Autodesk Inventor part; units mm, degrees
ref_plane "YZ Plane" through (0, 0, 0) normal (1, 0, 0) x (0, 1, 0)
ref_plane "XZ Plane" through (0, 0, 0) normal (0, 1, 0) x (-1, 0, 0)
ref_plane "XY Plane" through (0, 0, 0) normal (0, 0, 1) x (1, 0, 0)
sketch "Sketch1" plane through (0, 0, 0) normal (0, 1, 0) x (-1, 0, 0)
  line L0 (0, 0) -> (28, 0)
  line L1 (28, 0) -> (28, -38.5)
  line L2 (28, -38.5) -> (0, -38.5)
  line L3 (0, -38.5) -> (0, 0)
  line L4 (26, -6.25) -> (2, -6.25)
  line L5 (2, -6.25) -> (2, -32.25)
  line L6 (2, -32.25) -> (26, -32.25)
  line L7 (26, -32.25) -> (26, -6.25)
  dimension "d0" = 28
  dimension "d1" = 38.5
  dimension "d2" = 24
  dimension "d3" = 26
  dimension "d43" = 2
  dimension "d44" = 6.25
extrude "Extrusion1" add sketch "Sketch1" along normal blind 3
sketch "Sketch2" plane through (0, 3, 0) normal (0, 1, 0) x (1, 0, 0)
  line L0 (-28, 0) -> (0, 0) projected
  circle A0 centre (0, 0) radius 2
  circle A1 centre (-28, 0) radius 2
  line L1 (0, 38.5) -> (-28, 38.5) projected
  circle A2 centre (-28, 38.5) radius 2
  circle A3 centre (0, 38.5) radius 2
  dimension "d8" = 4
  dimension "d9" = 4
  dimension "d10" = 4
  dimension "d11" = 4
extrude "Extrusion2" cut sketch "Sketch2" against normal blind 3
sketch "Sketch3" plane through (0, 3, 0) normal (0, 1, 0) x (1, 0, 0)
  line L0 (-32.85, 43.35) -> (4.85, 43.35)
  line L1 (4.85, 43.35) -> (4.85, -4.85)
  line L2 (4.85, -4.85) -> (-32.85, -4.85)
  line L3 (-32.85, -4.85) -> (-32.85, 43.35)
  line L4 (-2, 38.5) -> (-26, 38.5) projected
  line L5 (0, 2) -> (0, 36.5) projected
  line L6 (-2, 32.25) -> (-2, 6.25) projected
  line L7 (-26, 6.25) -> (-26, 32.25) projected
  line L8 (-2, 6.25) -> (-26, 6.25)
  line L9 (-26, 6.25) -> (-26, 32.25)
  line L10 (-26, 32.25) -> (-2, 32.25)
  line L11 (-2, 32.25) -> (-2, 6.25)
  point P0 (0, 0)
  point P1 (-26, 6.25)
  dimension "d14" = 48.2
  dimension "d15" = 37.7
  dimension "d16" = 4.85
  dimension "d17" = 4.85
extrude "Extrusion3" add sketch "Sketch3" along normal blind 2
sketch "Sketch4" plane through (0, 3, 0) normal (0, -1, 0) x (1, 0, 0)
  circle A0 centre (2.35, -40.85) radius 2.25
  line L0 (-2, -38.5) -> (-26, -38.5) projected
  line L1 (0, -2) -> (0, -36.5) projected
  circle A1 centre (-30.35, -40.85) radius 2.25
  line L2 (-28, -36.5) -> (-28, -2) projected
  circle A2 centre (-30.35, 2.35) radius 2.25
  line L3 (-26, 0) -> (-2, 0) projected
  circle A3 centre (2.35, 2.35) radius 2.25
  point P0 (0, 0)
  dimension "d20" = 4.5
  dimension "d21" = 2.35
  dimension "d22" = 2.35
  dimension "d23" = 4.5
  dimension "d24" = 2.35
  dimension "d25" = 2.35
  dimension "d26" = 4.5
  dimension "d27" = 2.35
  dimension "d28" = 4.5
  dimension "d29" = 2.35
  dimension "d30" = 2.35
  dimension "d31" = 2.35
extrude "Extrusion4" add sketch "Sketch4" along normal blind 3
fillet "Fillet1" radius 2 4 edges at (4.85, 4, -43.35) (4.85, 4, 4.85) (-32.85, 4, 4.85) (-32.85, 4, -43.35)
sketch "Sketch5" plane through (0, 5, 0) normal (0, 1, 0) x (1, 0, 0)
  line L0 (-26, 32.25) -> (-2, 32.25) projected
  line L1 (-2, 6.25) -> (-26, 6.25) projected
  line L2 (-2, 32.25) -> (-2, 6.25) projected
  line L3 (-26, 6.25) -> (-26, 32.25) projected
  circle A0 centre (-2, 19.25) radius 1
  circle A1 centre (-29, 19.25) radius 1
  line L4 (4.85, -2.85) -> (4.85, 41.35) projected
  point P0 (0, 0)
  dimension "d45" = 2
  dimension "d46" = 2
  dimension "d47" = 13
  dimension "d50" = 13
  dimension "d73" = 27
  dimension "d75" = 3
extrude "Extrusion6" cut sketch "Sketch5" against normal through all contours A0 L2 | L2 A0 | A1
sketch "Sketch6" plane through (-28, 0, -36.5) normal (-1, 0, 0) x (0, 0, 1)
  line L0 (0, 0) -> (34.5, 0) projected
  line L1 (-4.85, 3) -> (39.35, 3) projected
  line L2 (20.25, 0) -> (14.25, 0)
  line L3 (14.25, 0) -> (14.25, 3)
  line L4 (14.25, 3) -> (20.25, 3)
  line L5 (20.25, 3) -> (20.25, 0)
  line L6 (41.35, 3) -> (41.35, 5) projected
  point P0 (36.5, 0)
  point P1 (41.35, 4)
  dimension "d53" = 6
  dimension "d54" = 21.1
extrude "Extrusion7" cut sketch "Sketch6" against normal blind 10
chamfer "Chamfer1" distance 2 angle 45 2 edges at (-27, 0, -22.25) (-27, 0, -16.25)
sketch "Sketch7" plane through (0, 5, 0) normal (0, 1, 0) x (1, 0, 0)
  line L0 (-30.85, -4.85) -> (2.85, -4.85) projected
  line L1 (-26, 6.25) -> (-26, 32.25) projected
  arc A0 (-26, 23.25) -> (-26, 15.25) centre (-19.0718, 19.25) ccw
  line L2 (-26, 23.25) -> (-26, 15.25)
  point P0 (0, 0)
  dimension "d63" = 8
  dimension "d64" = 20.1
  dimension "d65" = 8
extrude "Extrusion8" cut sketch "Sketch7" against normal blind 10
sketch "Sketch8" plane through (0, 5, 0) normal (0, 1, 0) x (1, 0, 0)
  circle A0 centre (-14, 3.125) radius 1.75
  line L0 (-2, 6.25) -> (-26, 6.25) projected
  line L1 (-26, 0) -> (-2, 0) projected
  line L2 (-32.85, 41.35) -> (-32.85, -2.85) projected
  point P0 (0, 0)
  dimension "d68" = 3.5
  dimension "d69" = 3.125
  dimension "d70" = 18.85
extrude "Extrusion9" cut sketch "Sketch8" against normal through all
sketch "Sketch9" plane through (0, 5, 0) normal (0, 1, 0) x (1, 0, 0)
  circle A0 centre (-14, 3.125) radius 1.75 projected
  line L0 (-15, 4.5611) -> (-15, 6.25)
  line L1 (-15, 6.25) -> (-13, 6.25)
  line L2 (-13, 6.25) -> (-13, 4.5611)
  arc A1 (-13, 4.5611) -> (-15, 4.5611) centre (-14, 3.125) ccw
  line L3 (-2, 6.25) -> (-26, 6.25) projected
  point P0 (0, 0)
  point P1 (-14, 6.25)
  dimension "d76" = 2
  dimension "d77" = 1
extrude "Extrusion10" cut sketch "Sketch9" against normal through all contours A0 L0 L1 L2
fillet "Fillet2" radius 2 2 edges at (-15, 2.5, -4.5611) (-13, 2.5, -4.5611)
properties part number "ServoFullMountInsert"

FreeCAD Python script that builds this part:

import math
import FreeCAD as App
import Part
import Sketcher


def edges_at(feature, points):
    """Names of the edges that pass closest to the given points."""
    edges = feature.Shape.Edges
    near = lambda p: min(range(len(edges)), key=lambda i: edges[i].distToShape(Part.Vertex(*p))[0])
    return sorted({f"Edge{near(p) + 1}" for p in points})

doc = App.newDocument("Part")
body = doc.addObject("PartDesign::Body", "Body")

# Sketch on XZ plane
sketch1 = body.newObject("Sketcher::SketchObject", "Sketch")
sketch1.AttachmentSupport = (doc.getObject("XZ_Plane"), [""])
sketch1.MapMode = "FlatFace"
sketch1.addGeometry([
    Part.LineSegment(App.Vector(-28, 0, 0), App.Vector(0, 0, 0)),  # 0
    Part.LineSegment(App.Vector(0, 0, 0), App.Vector(0, -38, 0)),  # 1
    Part.LineSegment(App.Vector(0, -38, 0), App.Vector(-28, -38, 0)),  # 2
    Part.LineSegment(App.Vector(-28, -38, 0), App.Vector(-28, 0, 0)),  # 3
    Part.LineSegment(App.Vector(-2, -6, 0), App.Vector(-26, -6, 0)),  # 4
    Part.LineSegment(App.Vector(-26, -6, 0), App.Vector(-26, -32, 0)),  # 5
    Part.LineSegment(App.Vector(-26, -32, 0), App.Vector(-2, -32, 0)),  # 6
    Part.LineSegment(App.Vector(-2, -32, 0), App.Vector(-2, -6, 0)),  # 7
], False)
sketch1.addConstraint([
    Sketcher.Constraint("Coincident", 0, 2, 1, 1),
    Sketcher.Constraint("Coincident", 1, 2, 2, 1),
    Sketcher.Constraint("Coincident", 2, 2, 3, 1),
    Sketcher.Constraint("Coincident", 3, 2, 0, 1),
    Sketcher.Constraint("Coincident", 4, 2, 5, 1),
    Sketcher.Constraint("Coincident", 5, 2, 6, 1),
    Sketcher.Constraint("Coincident", 6, 2, 7, 1),
    Sketcher.Constraint("Coincident", 7, 2, 4, 1),
    Sketcher.Constraint("Horizontal", 0),
    Sketcher.Constraint("Vertical", 1),
    Sketcher.Constraint("Horizontal", 2),
    Sketcher.Constraint("Vertical", 3),
    Sketcher.Constraint("Horizontal", 4),
    Sketcher.Constraint("Vertical", 5),
    Sketcher.Constraint("Horizontal", 6),
    Sketcher.Constraint("Vertical", 7),
    Sketcher.Constraint("Coincident", 0, 2, -1, 1),
    Sketcher.Constraint("DistanceX", 0, 1, 0, 2, 28.0),
    Sketcher.Constraint("DistanceX", 4, 2, 4, 1, 24.0),
    Sketcher.Constraint("DistanceY", 5, 2, 5, 1, 26.0),
    Sketcher.Constraint("DistanceY", 1, 2, 1, 1, 38.5),
    Sketcher.Constraint("DistanceX", 4, 2, -1, 1, 26.0),
    Sketcher.Constraint("DistanceY", 4, 2, -1, 1, 6.25),
])
pad1 = body.newObject("PartDesign::Pad", "Pad")
pad1.Profile = sketch1
pad1.Length = 3
pad1.Reversed = True

# Sketch on XZ plane
sketch2 = body.newObject("Sketcher::SketchObject", "Sketch001")
sketch2.AttachmentSupport = (doc.getObject("XZ_Plane"), [""])
sketch2.MapMode = "FlatFace"
sketch2.AttachmentOffset = App.Placement(App.Vector(0, 0, -3), App.Rotation())
sketch2.addGeometry([
    Part.Circle(App.Vector(0, 0, 0), App.Vector(0, 0, 1), 2),
    Part.Circle(App.Vector(-28, 0, 0), App.Vector(0, 0, 1), 2),
    Part.Circle(App.Vector(-28, -38.5, 0), App.Vector(0, 0, 1), 2),
    Part.Circle(App.Vector(0, -38.5, 0), App.Vector(0, 0, 1), 2),
], False)
sketch2.addConstraint([
    Sketcher.Constraint("Coincident", 0, 3, -1, 1),
    Sketcher.Constraint("Equal", 0, 1),
    Sketcher.Constraint("Equal", 1, 2),
    Sketcher.Constraint("Equal", 2, 3),
    Sketcher.Constraint("PointOnObject", 1, 3, -1),
    Sketcher.Constraint("PointOnObject", 3, 3, -2),
    Sketcher.Constraint("Horizontal", 2, 3, 3, 3),
    Sketcher.Constraint("Vertical", 1, 3, 2, 3),
    Sketcher.Constraint("Diameter", 0, 4.0),
    Sketcher.Constraint("DistanceX", 1, 3, -1, 1, 28.0),
    Sketcher.Constraint("DistanceY", 2, 3, -1, 1, 38.5),
])
pocket1 = body.newObject("PartDesign::Pocket", "Pocket")
pocket1.Profile = sketch2
pocket1.Length = 3
pocket1.Reversed = True

# Sketch on XZ plane
sketch3 = body.newObject("Sketcher::SketchObject", "Sketch002")
sketch3.AttachmentSupport = (doc.getObject("XZ_Plane"), [""])
sketch3.MapMode = "FlatFace"
sketch3.AttachmentOffset = App.Placement(App.Vector(0, 0, -3), App.Rotation())
sketch3.addGeometry([
    Part.LineSegment(App.Vector(5, -43, 0), App.Vector(-33, -43, 0)),  # 0
    Part.LineSegment(App.Vector(-33, -43, 0), App.Vector(-33, 5, 0)),  # 1
    Part.LineSegment(App.Vector(-33, 5, 0), App.Vector(5, 5, 0)),  # 2
    Part.LineSegment(App.Vector(5, 5, 0), App.Vector(5, -43, 0)),  # 3
    Part.LineSegment(App.Vector(-26, -32, 0), App.Vector(-2, -32, 0)),  # 4
    Part.LineSegment(App.Vector(-2, -32, 0), App.Vector(-2, -6, 0)),  # 5
    Part.LineSegment(App.Vector(-2, -6, 0), App.Vector(-26, -6, 0)),  # 6
    Part.LineSegment(App.Vector(-26, -6, 0), App.Vector(-26, -32, 0)),  # 7
], False)
sketch3.addConstraint([
    Sketcher.Constraint("Coincident", 0, 2, 1, 1),
    Sketcher.Constraint("Coincident", 1, 2, 2, 1),
    Sketcher.Constraint("Coincident", 2, 2, 3, 1),
    Sketcher.Constraint("Coincident", 3, 2, 0, 1),
    Sketcher.Constraint("Coincident", 4, 2, 5, 1),
    Sketcher.Constraint("Coincident", 5, 2, 6, 1),
    Sketcher.Constraint("Coincident", 6, 2, 7, 1),
    Sketcher.Constraint("Coincident", 7, 2, 4, 1),
    Sketcher.Constraint("Horizontal", 0),
    Sketcher.Constraint("Vertical", 1),
    Sketcher.Constraint("Horizontal", 2),
    Sketcher.Constraint("Vertical", 3),
    Sketcher.Constraint("Horizontal", 4),
    Sketcher.Constraint("Vertical", 5),
    Sketcher.Constraint("Horizontal", 6),
    Sketcher.Constraint("Vertical", 7),
    Sketcher.Constraint("DistanceX", 0, 2, 0, 1, 37.7),
    Sketcher.Constraint("DistanceY", 1, 1, 1, 2, 48.2),
    Sketcher.Constraint("DistanceX", 4, 1, 4, 2, 24.0),
    Sketcher.Constraint("DistanceY", 5, 1, 5, 2, 26.0),
    Sketcher.Constraint("DistanceY", -1, 1, 1, 2, 4.85),
    Sketcher.Constraint("DistanceX", -1, 1, 2, 2, 4.85),
    Sketcher.Constraint("DistanceX", 4, 2, -1, 1, 2.0),
    Sketcher.Constraint("DistanceY", 3, 2, 4, 2, 11.1),
])
pad2 = body.newObject("PartDesign::Pad", "Pad001")
pad2.Profile = sketch3
pad2.Length = 2
pad2.Reversed = True

# Sketch on XZ plane
sketch4 = body.newObject("Sketcher::SketchObject", "Sketch003")
sketch4.AttachmentSupport = (doc.getObject("XZ_Plane"), [""])
sketch4.MapMode = "FlatFace"
sketch4.AttachmentOffset = App.Placement(App.Vector(0, 0, -3), App.Rotation())
sketch4.addGeometry([
    Part.Circle(App.Vector(2.4, -40.9, 0), App.Vector(0, 0, 1), 2.2),
    Part.Circle(App.Vector(-30.4, -40.9, 0), App.Vector(0, 0, 1), 2.2),
    Part.Circle(App.Vector(-30.4, 2.4, 0), App.Vector(0, 0, 1), 2.2),
    Part.Circle(App.Vector(2.4, 2.4, 0), App.Vector(0, 0, 1), 2.2),
], False)
sketch4.addConstraint([
    Sketcher.Constraint("Equal", 0, 1),
    Sketcher.Constraint("Equal", 1, 2),
    Sketcher.Constraint("Equal", 2, 3),
    Sketcher.Constraint("Horizontal", 0, 3, 1, 3),
    Sketcher.Constraint("Horizontal", 2, 3, 3, 3),
    Sketcher.Constraint("Vertical", 1, 3, 2, 3),
    Sketcher.Constraint("Vertical", 0, 3, 3, 3),
    Sketcher.Constraint("Diameter", 0, 4.5),
    Sketcher.Constraint("DistanceX", -1, 1, 0, 3, 2.35),
    Sketcher.Constraint("DistanceY", -1, 1, 2, 3, 2.35),
    Sketcher.Constraint("DistanceX", 1, 3, 0, 3, 32.7),
    Sketcher.Constraint("DistanceY", 1, 3, 2, 3, 43.2),
])
pad3 = body.newObject("PartDesign::Pad", "Pad002")
pad3.Profile = sketch4
pad3.Length = 3
doc.recompute()

fillet = body.newObject("PartDesign::Fillet", "Fillet")
fillet.Base = (pad3, edges_at(pad3, [
    (4.85, 4, -43.35),
    (4.85, 4, 4.85),
    (-32.85, 4, 4.85),
    (-32.85, 4, -43.35),
]))
fillet.Radius = 2

# Sketch on XZ plane
sketch5 = body.newObject("Sketcher::SketchObject", "Sketch004")
sketch5.AttachmentSupport = (doc.getObject("XZ_Plane"), [""])
sketch5.MapMode = "FlatFace"
sketch5.AttachmentOffset = App.Placement(App.Vector(0, 0, -5), App.Rotation())
sketch5.addGeometry([
    Part.Circle(App.Vector(-2, -19.2, 0), App.Vector(0, 0, 1), 1),
    Part.Circle(App.Vector(-29, -19.2, 0), App.Vector(0, 0, 1), 1),
], False)
sketch5.addConstraint([
    Sketcher.Constraint("Equal", 0, 1),
    Sketcher.Constraint("Horizontal", 0, 3, 1, 3),
    Sketcher.Constraint("Diameter", 0, 2.0),
    Sketcher.Constraint("DistanceX", 0, 3, -1, 1, 2.0),
    Sketcher.Constraint("DistanceX", 1, 3, 0, 3, 27.0),
    Sketcher.Constraint("DistanceY", 0, 3, -1, 1, 19.25),
])
pocket2 = body.newObject("PartDesign::Pocket", "Pocket001")
pocket2.Profile = sketch5
pocket2.Type = "ThroughAll"
pocket2.Reversed = True

# Sketch on YZ plane
sketch6 = body.newObject("Sketcher::SketchObject", "Sketch005")
sketch6.AttachmentSupport = (doc.getObject("YZ_Plane"), [""])
sketch6.MapMode = "FlatFace"
sketch6.AttachmentOffset = App.Placement(App.Vector(0, 0, -28), App.Rotation())
sketch6.addGeometry([
    Part.LineSegment(App.Vector(3, -22.2, 0), App.Vector(0, -22.2, 0)),
    Part.LineSegment(App.Vector(0, -22.2, 0), App.Vector(0, -16.2, 0)),
    Part.LineSegment(App.Vector(0, -16.2, 0), App.Vector(3, -16.2, 0)),
    Part.LineSegment(App.Vector(3, -16.2, 0), App.Vector(3, -22.2, 0)),
], False)
sketch6.addConstraint([
    Sketcher.Constraint("Coincident", 0, 2, 1, 1),
    Sketcher.Constraint("Coincident", 1, 2, 2, 1),
    Sketcher.Constraint("Coincident", 2, 2, 3, 1),
    Sketcher.Constraint("Coincident", 3, 2, 0, 1),
    Sketcher.Constraint("Horizontal", 0),
    Sketcher.Constraint("Vertical", 1),
    Sketcher.Constraint("Horizontal", 2),
    Sketcher.Constraint("Vertical", 3),
    Sketcher.Constraint("PointOnObject", 0, 2, -2),
    Sketcher.Constraint("DistanceY", 1, 1, 1, 2, 6.0),
    Sketcher.Constraint("DistanceX", 0, 2, 0, 1, 3.0),
    Sketcher.Constraint("DistanceY", 0, 2, -1, 1, 22.25),
])
pocket3 = body.newObject("PartDesign::Pocket", "Pocket002")
pocket3.Profile = sketch6
pocket3.Length = 10
pocket3.Reversed = True
doc.recompute()

chamfer = body.newObject("PartDesign::Chamfer", "Chamfer")
chamfer.Base = (pocket3, edges_at(pocket3, [(-27, 0, -22.25), (-27, 0, -16.25)]))
chamfer.Size = 2

# Sketch on XZ plane
sketch7 = body.newObject("Sketcher::SketchObject", "Sketch006")
sketch7.AttachmentSupport = (doc.getObject("XZ_Plane"), [""])
sketch7.MapMode = "FlatFace"
sketch7.AttachmentOffset = App.Placement(App.Vector(0, 0, -5), App.Rotation())
sketch7.addGeometry([
    Part.ArcOfCircle(Part.Circle(App.Vector(-19, -19, 0), App.Vector(0, 0, 1), 8), math.radians(150), math.radians(210)),
    Part.LineSegment(App.Vector(-26, -15, 0), App.Vector(-26, -23, 0)),
], False)
sketch7.addConstraint([
    Sketcher.Constraint("Coincident", 0, 1, 1, 1),
    Sketcher.Constraint("Coincident", 1, 2, 0, 2),
    Sketcher.Constraint("Vertical", 1),
    Sketcher.Constraint("Radius", 0, 8.0),
    Sketcher.Constraint("DistanceY", 1, 2, 1, 1, 8.0),
    Sketcher.Constraint("DistanceX", 0, 1, -1, 1, 26.0),
    Sketcher.Constraint("DistanceY", 0, 3, -1, 1, 19.25),
])
pocket4 = body.newObject("PartDesign::Pocket", "Pocket003")
pocket4.Profile = sketch7
pocket4.Length = 10
pocket4.Reversed = True

# Sketch on XZ plane
sketch8 = body.newObject("Sketcher::SketchObject", "Sketch007")
sketch8.AttachmentSupport = (doc.getObject("XZ_Plane"), [""])
sketch8.MapMode = "FlatFace"
sketch8.AttachmentOffset = App.Placement(App.Vector(0, 0, -5), App.Rotation())
sketch8.addGeometry(Part.Circle(App.Vector(-14, -3.1, 0), App.Vector(0, 0, 1), 1.8), False)
sketch8.addConstraint([
    Sketcher.Constraint("Diameter", 0, 3.5),
    Sketcher.Constraint("DistanceX", 0, 3, -1, 1, 14.0),
    Sketcher.Constraint("DistanceY", 0, 3, -1, 1, 3.125),
])
pocket5 = body.newObject("PartDesign::Pocket", "Pocket004")
pocket5.Profile = sketch8
pocket5.Type = "ThroughAll"
pocket5.Reversed = True

# Sketch on XZ plane
sketch9 = body.newObject("Sketcher::SketchObject", "Sketch008")
sketch9.AttachmentSupport = (doc.getObject("XZ_Plane"), [""])
sketch9.MapMode = "FlatFace"
sketch9.AttachmentOffset = App.Placement(App.Vector(0, 0, -5), App.Rotation())
sketch9.addGeometry([
    Part.ArcOfCircle(Part.Circle(App.Vector(-14, -3.1, 0), App.Vector(0, 0, 1), 1.8), math.radians(-125), math.radians(-55)),
    Part.LineSegment(App.Vector(-13, -4.6, 0), App.Vector(-13, -6.2, 0)),
    Part.LineSegment(App.Vector(-13, -6.2, 0), App.Vector(-15, -6.2, 0)),
    Part.LineSegment(App.Vector(-15, -6.2, 0), App.Vector(-15, -4.6, 0)),
], False)
sketch9.addConstraint([
    Sketcher.Constraint("Coincident", 0, 2, 1, 1),
    Sketcher.Constraint("Coincident", 1, 2, 2, 1),
    Sketcher.Constraint("Coincident", 2, 2, 3, 1),
    Sketcher.Constraint("Coincident", 3, 2, 0, 1),
    Sketcher.Constraint("Vertical", 1),
    Sketcher.Constraint("Horizontal", 2),
    Sketcher.Constraint("Vertical", 3),
    Sketcher.Constraint("Horizontal", 0, 2, 3, 2),
    Sketcher.Constraint("DistanceX", 2, 2, 2, 1, 2.0),
    Sketcher.Constraint("Radius", 0, 1.75),
    Sketcher.Constraint("DistanceX", 0, 3, -1, 1, 14.0),
    Sketcher.Constraint("DistanceY", 1, 2, 1, 1, 1.689),
    Sketcher.Constraint("DistanceY", 1, 2, -1, 1, 6.25),
])
pocket6 = body.newObject("PartDesign::Pocket", "Pocket005")
pocket6.Profile = sketch9
pocket6.Type = "ThroughAll"
pocket6.Reversed = True
doc.recompute()

fillet2 = body.newObject("PartDesign::Fillet", "Fillet001")
fillet2.Base = (pocket6, edges_at(pocket6, [(-15, 2.5, -4.561), (-13, 2.5, -4.561)]))
fillet2.Radius = 2

doc.recompute()
